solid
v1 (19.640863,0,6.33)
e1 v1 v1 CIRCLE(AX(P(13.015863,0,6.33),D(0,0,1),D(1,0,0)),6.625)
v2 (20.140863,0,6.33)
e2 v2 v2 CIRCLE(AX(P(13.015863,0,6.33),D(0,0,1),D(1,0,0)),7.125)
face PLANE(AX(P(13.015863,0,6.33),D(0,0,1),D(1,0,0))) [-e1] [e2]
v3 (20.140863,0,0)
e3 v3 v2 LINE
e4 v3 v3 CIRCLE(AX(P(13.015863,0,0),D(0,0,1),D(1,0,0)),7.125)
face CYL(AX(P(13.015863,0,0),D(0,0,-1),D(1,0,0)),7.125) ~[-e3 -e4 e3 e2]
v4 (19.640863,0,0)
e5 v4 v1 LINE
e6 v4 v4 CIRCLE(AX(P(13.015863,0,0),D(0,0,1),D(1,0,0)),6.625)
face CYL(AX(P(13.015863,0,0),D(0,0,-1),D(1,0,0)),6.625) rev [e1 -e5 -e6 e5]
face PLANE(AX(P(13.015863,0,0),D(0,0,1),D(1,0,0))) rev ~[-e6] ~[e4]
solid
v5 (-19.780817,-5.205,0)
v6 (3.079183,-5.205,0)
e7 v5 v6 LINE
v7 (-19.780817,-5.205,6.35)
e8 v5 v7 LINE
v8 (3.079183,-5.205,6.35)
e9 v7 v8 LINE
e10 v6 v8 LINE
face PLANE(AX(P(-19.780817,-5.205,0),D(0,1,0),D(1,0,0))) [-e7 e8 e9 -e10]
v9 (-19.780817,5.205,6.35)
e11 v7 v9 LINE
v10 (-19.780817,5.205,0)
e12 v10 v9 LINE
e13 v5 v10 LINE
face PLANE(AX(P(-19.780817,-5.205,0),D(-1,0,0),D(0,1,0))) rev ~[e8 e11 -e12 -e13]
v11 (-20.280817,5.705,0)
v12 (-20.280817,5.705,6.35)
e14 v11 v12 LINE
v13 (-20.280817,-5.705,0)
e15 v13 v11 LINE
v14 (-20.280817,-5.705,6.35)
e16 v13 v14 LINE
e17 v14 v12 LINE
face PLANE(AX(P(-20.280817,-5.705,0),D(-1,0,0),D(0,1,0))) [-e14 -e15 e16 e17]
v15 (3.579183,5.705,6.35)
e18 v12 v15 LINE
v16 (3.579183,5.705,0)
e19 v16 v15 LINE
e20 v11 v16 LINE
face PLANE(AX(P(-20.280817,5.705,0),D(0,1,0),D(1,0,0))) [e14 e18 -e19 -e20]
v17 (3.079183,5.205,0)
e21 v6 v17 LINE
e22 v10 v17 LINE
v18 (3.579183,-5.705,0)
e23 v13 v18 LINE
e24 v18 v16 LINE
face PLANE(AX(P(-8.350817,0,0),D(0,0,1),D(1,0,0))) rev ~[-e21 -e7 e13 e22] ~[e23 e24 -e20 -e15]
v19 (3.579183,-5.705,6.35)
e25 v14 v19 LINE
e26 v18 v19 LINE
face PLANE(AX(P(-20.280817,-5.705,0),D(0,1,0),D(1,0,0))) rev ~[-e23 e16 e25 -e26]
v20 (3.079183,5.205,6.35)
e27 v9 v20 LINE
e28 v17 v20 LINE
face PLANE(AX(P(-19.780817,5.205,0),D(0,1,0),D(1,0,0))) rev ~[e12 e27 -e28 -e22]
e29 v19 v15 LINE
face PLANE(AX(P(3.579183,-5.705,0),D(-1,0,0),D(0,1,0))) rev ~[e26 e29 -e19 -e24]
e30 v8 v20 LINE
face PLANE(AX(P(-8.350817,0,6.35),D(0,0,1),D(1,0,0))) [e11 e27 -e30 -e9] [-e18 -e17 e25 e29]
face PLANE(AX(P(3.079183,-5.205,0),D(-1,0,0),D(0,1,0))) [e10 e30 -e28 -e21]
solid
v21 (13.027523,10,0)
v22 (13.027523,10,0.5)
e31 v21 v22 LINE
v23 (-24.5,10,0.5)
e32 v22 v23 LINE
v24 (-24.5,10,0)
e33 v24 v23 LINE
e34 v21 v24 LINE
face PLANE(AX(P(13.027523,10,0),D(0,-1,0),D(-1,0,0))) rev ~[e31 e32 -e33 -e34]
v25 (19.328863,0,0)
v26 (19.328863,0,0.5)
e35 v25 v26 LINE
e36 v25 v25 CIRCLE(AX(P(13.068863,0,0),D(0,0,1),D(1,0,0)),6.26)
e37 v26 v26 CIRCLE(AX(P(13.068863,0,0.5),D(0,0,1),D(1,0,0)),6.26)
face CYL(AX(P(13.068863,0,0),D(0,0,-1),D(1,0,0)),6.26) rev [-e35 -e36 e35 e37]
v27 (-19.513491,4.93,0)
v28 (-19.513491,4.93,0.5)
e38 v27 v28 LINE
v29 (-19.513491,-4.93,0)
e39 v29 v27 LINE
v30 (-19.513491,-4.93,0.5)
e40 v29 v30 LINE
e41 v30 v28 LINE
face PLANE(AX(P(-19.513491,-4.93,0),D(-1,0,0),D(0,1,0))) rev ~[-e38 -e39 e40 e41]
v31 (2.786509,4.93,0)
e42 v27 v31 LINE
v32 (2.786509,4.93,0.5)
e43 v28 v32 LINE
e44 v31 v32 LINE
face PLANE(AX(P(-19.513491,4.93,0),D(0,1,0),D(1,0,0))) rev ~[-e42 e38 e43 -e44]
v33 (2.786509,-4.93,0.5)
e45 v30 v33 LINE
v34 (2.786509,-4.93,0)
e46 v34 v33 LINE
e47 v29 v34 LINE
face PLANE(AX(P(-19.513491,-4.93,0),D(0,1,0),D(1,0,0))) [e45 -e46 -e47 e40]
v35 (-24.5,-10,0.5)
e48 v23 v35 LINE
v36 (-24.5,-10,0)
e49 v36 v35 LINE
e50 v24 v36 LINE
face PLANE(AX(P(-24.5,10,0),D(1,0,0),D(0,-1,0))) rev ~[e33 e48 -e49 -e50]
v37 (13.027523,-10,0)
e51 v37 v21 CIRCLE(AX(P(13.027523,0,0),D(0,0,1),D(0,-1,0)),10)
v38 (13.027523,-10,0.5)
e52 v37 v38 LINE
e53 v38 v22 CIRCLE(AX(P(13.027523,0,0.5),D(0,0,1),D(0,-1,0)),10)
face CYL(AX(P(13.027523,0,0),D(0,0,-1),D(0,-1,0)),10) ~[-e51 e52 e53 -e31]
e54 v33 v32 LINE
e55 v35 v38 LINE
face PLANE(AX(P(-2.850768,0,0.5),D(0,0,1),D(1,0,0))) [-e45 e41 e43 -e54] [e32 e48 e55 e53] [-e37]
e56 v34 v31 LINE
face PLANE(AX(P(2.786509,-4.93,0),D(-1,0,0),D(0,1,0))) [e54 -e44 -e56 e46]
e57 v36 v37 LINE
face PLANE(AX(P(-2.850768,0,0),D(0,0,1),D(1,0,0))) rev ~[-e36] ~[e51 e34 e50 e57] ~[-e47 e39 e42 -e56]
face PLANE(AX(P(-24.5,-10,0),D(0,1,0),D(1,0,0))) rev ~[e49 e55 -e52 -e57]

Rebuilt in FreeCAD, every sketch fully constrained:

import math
import FreeCAD as App
import Part
import Sketcher
from FreeCAD import Vector
Q = App.Units.Quantity

doc = App.newDocument("Part")
body = doc.addObject("PartDesign::Body", "Body")

sketch1 = doc.addObject("Sketcher::SketchObject", "Sketch")
body.addObject(sketch1)
sketch1.AttachmentSupport = (doc.XY_Plane, [""])
sketch1.MapMode = "FlatFace"
sketch1.addGeometry([
    Part.LineSegment(Vector(-24, 10, 0), Vector(-24, -10, 0)),
    Part.LineSegment(Vector(-24, -10, 0), Vector(13, -10, 0)),
    Part.ArcOfCircle(Part.Circle(Vector(13, 0, 0), Vector(0, 0, 1), 10), math.radians(-90), math.radians(90)),
    Part.LineSegment(Vector(13, 10, 0), Vector(-24, 10, 0)),
    Part.LineSegment(Vector(3, -5, 0), Vector(-20, -5, 0)),
    Part.LineSegment(Vector(-20, -5, 0), Vector(-20, 5, 0)),
    Part.LineSegment(Vector(-20, 5, 0), Vector(3, 5, 0)),
    Part.LineSegment(Vector(3, 5, 0), Vector(3, -5, 0)),
    Part.Circle(Vector(13, 0, 0), Vector(0, 0, 1), 6),
], False)
sketch1.addConstraint([
    Sketcher.Constraint("Coincident", 0, 2, 1, 1),
    Sketcher.Constraint("Tangent", 1, 2, 2, 1),
    Sketcher.Constraint("Tangent", 2, 2, 3, 1),
    Sketcher.Constraint("Coincident", 3, 2, 0, 1),
    Sketcher.Constraint("Coincident", 4, 2, 5, 1),
    Sketcher.Constraint("Coincident", 5, 2, 6, 1),
    Sketcher.Constraint("Coincident", 6, 2, 7, 1),
    Sketcher.Constraint("Coincident", 7, 2, 4, 1),
    Sketcher.Constraint("Vertical", 0),
    Sketcher.Constraint("Horizontal", 1),
    Sketcher.Constraint("Horizontal", 3),
    Sketcher.Constraint("Horizontal", 4),
    Sketcher.Constraint("Vertical", 5),
    Sketcher.Constraint("Horizontal", 6),
    Sketcher.Constraint("Vertical", 7),
    Sketcher.Constraint("PointOnObject", 2, 3, -1),
    Sketcher.Constraint("PointOnObject", 8, 3, -1),
    Sketcher.Constraint("Radius", 2, Q("10 mm")),
    Sketcher.Constraint("Diameter", 8, Q("12.52 mm")),
    Sketcher.Constraint("DistanceX", 4, 2, 4, 1, Q("22.3 mm")),
    Sketcher.Constraint("DistanceY", 5, 1, 5, 2, Q("9.86 mm")),
    Sketcher.Constraint("DistanceX", 0, 2, -1, 1, Q("24.5 mm")),
    Sketcher.Constraint("DistanceY", 4, 2, -1, 1, Q("4.93 mm")),
    Sketcher.Constraint("DistanceX", 1, 1, 1, 2, Q("37.527523 mm")),
    Sketcher.Constraint("DistanceX", 4, 2, -1, 1, Q("19.513491 mm")),
    Sketcher.Constraint("DistanceX", 2, 3, 8, 3, Q("0.04134 mm")),
])
pad1 = doc.addObject("PartDesign::Pad", "Pad")
body.addObject(pad1)
pad1.Profile = sketch1
pad1.Length = 0.5
body2 = doc.addObject("PartDesign::Body", "Body001")

sketch2 = doc.addObject("Sketcher::SketchObject", "Sketch001")
body2.addObject(sketch2)
sketch2.AttachmentSupport = (doc.getObject("XY_Plane001"), [""])
sketch2.MapMode = "FlatFace"
sketch2.addGeometry([
    Part.Circle(Vector(13, 0, 0), Vector(0, 0, 1), 7),
    Part.Circle(Vector(13, 0, 0), Vector(0, 0, 1), 7),
], False)
sketch2.addConstraint([
    Sketcher.Constraint("Coincident", 1, 3, 0, 3),
    Sketcher.Constraint("PointOnObject", 0, 3, -1),
    Sketcher.Constraint("Diameter", 0, Q("14.25 mm")),
    Sketcher.Constraint("Diameter", 1, Q("13.25 mm")),
    Sketcher.Constraint("DistanceX", -1, 1, 0, 3, Q("13.015863 mm")),
])
pad2 = doc.addObject("PartDesign::Pad", "Pad001")
body2.addObject(pad2)
pad2.Profile = sketch2
pad2.Length = 6.33
body3 = doc.addObject("PartDesign::Body", "Body002")

sketch3 = doc.addObject("Sketcher::SketchObject", "Sketch002")
body3.addObject(sketch3)
sketch3.AttachmentSupport = (doc.getObject("XY_Plane002"), [""])
sketch3.MapMode = "FlatFace"
sketch3.addGeometry([
    Part.LineSegment(Vector(-20, 6, 0), Vector(-20, -6, 0)),
    Part.LineSegment(Vector(-20, -6, 0), Vector(4, -6, 0)),
    Part.LineSegment(Vector(4, -6, 0), Vector(4, 6, 0)),
    Part.LineSegment(Vector(4, 6, 0), Vector(-20, 6, 0)),
    Part.LineSegment(Vector(3, -5, 0), Vector(-20, -5, 0)),
    Part.LineSegment(Vector(-20, -5, 0), Vector(-20, 5, 0)),
    Part.LineSegment(Vector(-20, 5, 0), Vector(3, 5, 0)),
    Part.LineSegment(Vector(3, 5, 0), Vector(3, -5, 0)),
], False)
sketch3.addConstraint([
    Sketcher.Constraint("Coincident", 0, 2, 1, 1),
    Sketcher.Constraint("Coincident", 1, 2, 2, 1),
    Sketcher.Constraint("Coincident", 2, 2, 3, 1),
    Sketcher.Constraint("Coincident", 3, 2, 0, 1),
    Sketcher.Constraint("Coincident", 4, 2, 5, 1),
    Sketcher.Constraint("Coincident", 5, 2, 6, 1),
    Sketcher.Constraint("Coincident", 6, 2, 7, 1),
    Sketcher.Constraint("Coincident", 7, 2, 4, 1),
    Sketcher.Constraint("Vertical", 0),
    Sketcher.Constraint("Horizontal", 1),
    Sketcher.Constraint("Vertical", 2),
    Sketcher.Constraint("Horizontal", 3),
    Sketcher.Constraint("Horizontal", 4),
    Sketcher.Constraint("Vertical", 5),
    Sketcher.Constraint("Horizontal", 6),
    Sketcher.Constraint("Vertical", 7),
    Sketcher.Constraint("DistanceX", 1, 1, 1, 2, Q("23.86 mm")),
    Sketcher.Constraint("DistanceX", 4, 2, 4, 1, Q("22.86 mm")),
    Sketcher.Constraint("DistanceY", 0, 2, 0, 1, Q("11.41 mm")),
    Sketcher.Constraint("DistanceY", 5, 1, 5, 2, Q("10.41 mm")),
    Sketcher.Constraint("DistanceX", 0, 2, 4, 2, Q("0.5 mm")),
    Sketcher.Constraint("DistanceY", 0, 2, 4, 2, Q("0.5 mm")),
    Sketcher.Constraint("DistanceY", 0, 2, -1, 1, Q("5.705 mm")),
    Sketcher.Constraint("DistanceX", 0, 2, -1, 1, Q("20.280817 mm")),
])
pad3 = doc.addObject("PartDesign::Pad", "Pad002")
body3.addObject(pad3)
pad3.Profile = sketch3
pad3.Length = 6.35

doc.recompute()
